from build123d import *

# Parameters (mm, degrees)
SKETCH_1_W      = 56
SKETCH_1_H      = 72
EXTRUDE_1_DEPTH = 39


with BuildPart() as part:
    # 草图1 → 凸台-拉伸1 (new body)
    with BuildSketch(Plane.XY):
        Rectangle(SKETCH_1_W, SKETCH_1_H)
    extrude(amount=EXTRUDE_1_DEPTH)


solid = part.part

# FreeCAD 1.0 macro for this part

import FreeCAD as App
import Part
import Sketcher
Q = App.Units.Quantity

doc = App.newDocument("Part")
body = doc.addObject("PartDesign::Body", "Body")

sketch1 = body.newObject("Sketcher::SketchObject", "Sketch")
sketch1.AttachmentSupport = (doc.getObject("XY_Plane"), [""])
sketch1.MapMode = "FlatFace"
sketch1.addGeometry([
    Part.LineSegment(App.Vector(-28, 36, 0), App.Vector(-28, -36, 0)),
    Part.LineSegment(App.Vector(-28, -36, 0), App.Vector(28, -36, 0)),
    Part.LineSegment(App.Vector(28, -36, 0), App.Vector(28, 36, 0)),
    Part.LineSegment(App.Vector(28, 36, 0), App.Vector(-28, 36, 0)),
], False)
sketch1.addConstraint([
    Sketcher.Constraint("Coincident", 0, 2, 1, 1),
    Sketcher.Constraint("Coincident", 1, 2, 2, 1),
    Sketcher.Constraint("Coincident", 2, 2, 3, 1),
    Sketcher.Constraint("Coincident", 3, 2, 0, 1),
    Sketcher.Constraint("Vertical", 0),
    Sketcher.Constraint("Horizontal", 1),
    Sketcher.Constraint("Vertical", 2),
    Sketcher.Constraint("Horizontal", 3),
    Sketcher.Constraint("Symmetric", 0, 2, 2, 2, -1, 1),
    Sketcher.Constraint("DistanceX", 1, 1, 1, 2, Q("56 mm")),
    Sketcher.Constraint("DistanceY", 0, 2, 0, 1, Q("72 mm")),
])
pad1 = body.newObject("PartDesign::Pad", "Pad")
pad1.Profile = sketch1
pad1.Length = 39

doc.recompute()
